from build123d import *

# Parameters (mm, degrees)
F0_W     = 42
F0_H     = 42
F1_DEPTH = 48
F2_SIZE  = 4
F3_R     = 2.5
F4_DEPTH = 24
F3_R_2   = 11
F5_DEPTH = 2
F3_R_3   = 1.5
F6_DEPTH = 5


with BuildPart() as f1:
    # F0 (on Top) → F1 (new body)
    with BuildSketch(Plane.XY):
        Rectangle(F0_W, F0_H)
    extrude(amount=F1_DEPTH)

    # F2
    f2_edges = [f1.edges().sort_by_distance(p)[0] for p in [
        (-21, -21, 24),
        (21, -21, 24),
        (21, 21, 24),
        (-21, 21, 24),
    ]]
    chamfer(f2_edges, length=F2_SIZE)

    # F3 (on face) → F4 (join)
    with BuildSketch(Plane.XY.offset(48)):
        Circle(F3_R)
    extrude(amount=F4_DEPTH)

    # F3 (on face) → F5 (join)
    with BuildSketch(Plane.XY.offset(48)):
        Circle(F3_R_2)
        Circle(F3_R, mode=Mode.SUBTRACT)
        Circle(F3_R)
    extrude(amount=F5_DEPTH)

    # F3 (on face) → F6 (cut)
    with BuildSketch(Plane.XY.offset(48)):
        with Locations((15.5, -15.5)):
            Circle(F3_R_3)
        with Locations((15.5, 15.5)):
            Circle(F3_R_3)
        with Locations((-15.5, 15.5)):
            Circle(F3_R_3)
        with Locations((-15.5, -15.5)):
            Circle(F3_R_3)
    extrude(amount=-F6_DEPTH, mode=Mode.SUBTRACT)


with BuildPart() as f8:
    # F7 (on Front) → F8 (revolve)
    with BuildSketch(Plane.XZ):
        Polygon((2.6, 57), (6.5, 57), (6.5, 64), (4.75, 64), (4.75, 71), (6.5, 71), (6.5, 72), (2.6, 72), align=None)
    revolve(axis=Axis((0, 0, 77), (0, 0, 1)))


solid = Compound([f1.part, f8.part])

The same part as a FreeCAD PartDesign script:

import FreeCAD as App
import Part
import Sketcher
from FreeCAD import Vector
Q = App.Units.Quantity


def edges_at(feature, points):
    """Names of the edges that pass closest to the given points."""
    edges = feature.Shape.Edges
    near = lambda p: min(range(len(edges)), key=lambda i: edges[i].distToShape(Part.Vertex(*p))[0])
    return sorted({f"Edge{near(p) + 1}" for p in points})


def add_polygon(sketch, points):
    """Adds a closed chain of lines whose ends are joined by coincident constraints."""
    first, n = sketch.GeometryCount, len(points)
    for a, b in zip(points, points[1:] + points[:1]):
        sketch.addGeometry(Part.LineSegment(App.Vector(*a, 0), App.Vector(*b, 0)), False)
    for i in range(n):
        sketch.addConstraint(Sketcher.Constraint("Coincident", first + i, 2, first + (i + 1) % n, 1))

doc = App.newDocument("Part")
body = doc.addObject("PartDesign::Body", "Body")

sketch1 = body.newObject("Sketcher::SketchObject", "Sketch")
sketch1.AttachmentSupport = (doc.getObject("XY_Plane"), [""])
sketch1.MapMode = "FlatFace"
add_polygon(sketch1, [(-21, 21), (-21, -21), (21, -21), (21, 21)])
sketch1.addConstraint([
    Sketcher.Constraint("Vertical", 0),
    Sketcher.Constraint("Horizontal", 1),
    Sketcher.Constraint("Vertical", 2),
    Sketcher.Constraint("Horizontal", 3),
    Sketcher.Constraint("Symmetric", 0, 2, 2, 2, -1, 1),
    Sketcher.Constraint("Equal", 3, 0),
    Sketcher.Constraint("DistanceX", 1, 1, 1, 2, Q("42 mm")),
])
pad1 = body.newObject("PartDesign::Pad", "Pad")
pad1.Profile = sketch1
pad1.Length = 48
doc.recompute()

chamfer = body.newObject("PartDesign::Chamfer", "Chamfer")
chamfer.Base = (pad1, edges_at(pad1, [
    (-21, -21, 24),
    (21, -21, 24),
    (21, 21, 24),
    (-21, 21, 24),
]))
chamfer.Size = 4

sketch2 = body.newObject("Sketcher::SketchObject", "Sketch001")
sketch2.AttachmentSupport = (doc.getObject("XY_Plane"), [""])
sketch2.MapMode = "FlatFace"
sketch2.AttachmentOffset = App.Placement(Vector(0, 0, 48), App.Rotation())
sketch2.addGeometry(Part.Circle(Vector(0, 0, 0), Vector(0, 0, 1), 2.5), False)
sketch2.addConstraint([
    Sketcher.Constraint("Coincident", 0, 3, -1, 1),
    Sketcher.Constraint("Diameter", 0, Q("5 mm")),
])
pad2 = body.newObject("PartDesign::Pad", "Pad001")
pad2.Profile = sketch2
pad2.Length = 24

sketch3 = body.newObject("Sketcher::SketchObject", "Sketch002")
sketch3.AttachmentSupport = (doc.getObject("XY_Plane"), [""])
sketch3.MapMode = "FlatFace"
sketch3.AttachmentOffset = App.Placement(Vector(0, 0, 48), App.Rotation())
sketch3.addGeometry(Part.Circle(Vector(0, 0, 0), Vector(0, 0, 1), 11), False)
sketch3.addConstraint([
    Sketcher.Constraint("Coincident", 0, 3, -1, 1),
    Sketcher.Constraint("Diameter", 0, Q("22 mm")),
])
pad3 = body.newObject("PartDesign::Pad", "Pad002")
pad3.Profile = sketch3
pad3.Length = 2

sketch4 = body.newObject("Sketcher::SketchObject", "Sketch003")
sketch4.AttachmentSupport = (doc.getObject("XY_Plane"), [""])
sketch4.MapMode = "FlatFace"
sketch4.AttachmentOffset = App.Placement(Vector(0, 0, 48), App.Rotation())
sketch4.addGeometry([
    Part.Circle(Vector(15.5, -15.5, 0), Vector(0, 0, 1), 1.5),
    Part.Circle(Vector(15.5, 15.5, 0), Vector(0, 0, 1), 1.5),
    Part.Circle(Vector(-15.5, 15.5, 0), Vector(0, 0, 1), 1.5),
    Part.Circle(Vector(-15.5, -15.5, 0), Vector(0, 0, 1), 1.5),
], False)
sketch4.addConstraint([
    Sketcher.Constraint("Equal", 0, 1),
    Sketcher.Constraint("Equal", 1, 2),
    Sketcher.Constraint("Equal", 2, 3),
    Sketcher.Constraint("Symmetric", 0, 3, 2, 3, -1, 1),
    Sketcher.Constraint("Symmetric", 1, 3, 3, 3, -1, 1),
    Sketcher.Constraint("Symmetric", 1, 3, 2, 3, -2),
    Sketcher.Constraint("Diameter", 0, Q("3 mm")),
    Sketcher.Constraint("DistanceY", 0, 3, 1, 3, Q("31 mm")),
    Sketcher.Constraint("DistanceX", 2, 3, 1, 3, Q("31 mm")),
])
pocket1 = body.newObject("PartDesign::Pocket", "Pocket")
pocket1.Profile = sketch4
pocket1.Length = 5
body2 = doc.addObject("PartDesign::Body", "Body001")

sketch5 = body2.newObject("Sketcher::SketchObject", "Sketch004")
sketch5.AttachmentSupport = (doc.getObject("XZ_Plane001"), [""])
sketch5.MapMode = "FlatFace"
add_polygon(sketch5, [(2.6, 57), (6.5, 57), (6.5, 64), (4.8, 64), (4.8, 71), (6.5, 71), (6.5, 72), (2.6, 72)])
sketch5.addConstraint([
    Sketcher.Constraint("Horizontal", 0),
    Sketcher.Constraint("Vertical", 1),
    Sketcher.Constraint("Horizontal", 2),
    Sketcher.Constraint("Vertical", 3),
    Sketcher.Constraint("Horizontal", 4),
    Sketcher.Constraint("Vertical", 5),
    Sketcher.Constraint("Horizontal", 6),
    Sketcher.Constraint("Vertical", 7),
    Sketcher.Constraint("Vertical", 1, 2, 4, 2),
    Sketcher.Constraint("Equal", 1, 3),
    Sketcher.Constraint("DistanceY", 1, 1, 1, 2, Q("7 mm")),
    Sketcher.Constraint("DistanceY", 5, 1, 5, 2, Q("1 mm")),
    Sketcher.Constraint("DistanceX", 0, 1, 0, 2, Q("3.9 mm")),
    Sketcher.Constraint("DistanceY", -1, 1, 0, 2, Q("57 mm")),
    Sketcher.Constraint("DistanceX", 2, 2, 2, 1, Q("1.75 mm")),
    Sketcher.Constraint("DistanceX", -1, 1, 0, 2, Q("6.5 mm")),
])
revolution = body2.newObject("PartDesign::Revolution", "Revolution")
revolution.Profile = sketch5
revolution.ReferenceAxis = (sketch5, ["V_Axis"])
revolution.Angle = 360

doc.recompute()
